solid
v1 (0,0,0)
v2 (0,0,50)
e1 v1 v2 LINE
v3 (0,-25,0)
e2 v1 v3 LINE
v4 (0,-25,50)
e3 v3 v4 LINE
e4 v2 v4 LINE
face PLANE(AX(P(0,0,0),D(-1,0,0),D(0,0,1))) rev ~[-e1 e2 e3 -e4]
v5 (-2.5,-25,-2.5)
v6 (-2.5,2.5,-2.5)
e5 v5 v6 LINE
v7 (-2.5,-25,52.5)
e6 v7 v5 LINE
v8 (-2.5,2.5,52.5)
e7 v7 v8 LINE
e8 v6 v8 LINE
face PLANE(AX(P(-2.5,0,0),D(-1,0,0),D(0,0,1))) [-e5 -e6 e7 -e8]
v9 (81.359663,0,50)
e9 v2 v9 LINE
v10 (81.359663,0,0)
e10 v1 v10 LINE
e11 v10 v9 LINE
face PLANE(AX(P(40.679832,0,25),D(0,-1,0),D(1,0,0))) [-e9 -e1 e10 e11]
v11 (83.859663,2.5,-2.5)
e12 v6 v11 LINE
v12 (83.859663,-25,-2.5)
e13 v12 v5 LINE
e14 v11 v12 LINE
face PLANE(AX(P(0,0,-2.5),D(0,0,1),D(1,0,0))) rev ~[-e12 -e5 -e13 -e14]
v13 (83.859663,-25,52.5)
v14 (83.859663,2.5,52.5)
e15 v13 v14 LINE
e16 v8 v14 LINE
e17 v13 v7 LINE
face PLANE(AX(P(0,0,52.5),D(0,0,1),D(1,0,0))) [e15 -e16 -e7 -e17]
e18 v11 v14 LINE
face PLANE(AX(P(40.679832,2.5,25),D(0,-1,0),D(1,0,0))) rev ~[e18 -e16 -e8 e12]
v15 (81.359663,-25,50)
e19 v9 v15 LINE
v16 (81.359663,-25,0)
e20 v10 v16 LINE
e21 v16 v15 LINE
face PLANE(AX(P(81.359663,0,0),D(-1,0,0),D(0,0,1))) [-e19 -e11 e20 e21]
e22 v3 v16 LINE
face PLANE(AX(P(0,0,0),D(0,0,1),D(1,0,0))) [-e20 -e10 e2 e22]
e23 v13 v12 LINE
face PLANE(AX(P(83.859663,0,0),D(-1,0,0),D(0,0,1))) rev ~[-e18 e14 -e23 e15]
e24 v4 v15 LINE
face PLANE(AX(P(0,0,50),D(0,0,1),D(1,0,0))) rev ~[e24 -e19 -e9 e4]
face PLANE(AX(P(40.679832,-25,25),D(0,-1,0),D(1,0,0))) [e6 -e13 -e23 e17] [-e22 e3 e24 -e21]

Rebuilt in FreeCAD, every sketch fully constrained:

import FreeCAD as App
import Part
import Sketcher
Q = App.Units.Quantity


def faces_at(feature, points):
    """Names of the faces that lie closest to the given points."""
    faces = feature.Shape.Faces
    near = lambda p: min(range(len(faces)), key=lambda i: faces[i].distToShape(Part.Vertex(*p))[0])
    return sorted({f"Face{near(p) + 1}" for p in points})


def add_polygon(sketch, points):
    """Adds a closed chain of lines whose ends are joined by coincident constraints."""
    first, n = sketch.GeometryCount, len(points)
    for a, b in zip(points, points[1:] + points[:1]):
        sketch.addGeometry(Part.LineSegment(App.Vector(*a, 0), App.Vector(*b, 0)), False)
    for i in range(n):
        sketch.addConstraint(Sketcher.Constraint("Coincident", first + i, 2, first + (i + 1) % n, 1))

doc = App.newDocument("Part")
params = doc.addObject("Spreadsheet::Sheet", "Params")
for row, (alias, value) in enumerate([
    ("sketch1_height", "50 mm"),
    ("pad1_length", "25 mm"),
    ("thickness_wall", "2.5 mm"),
], start=1):
    params.set(f"A{row}", alias)
    params.set(f"B{row}", "=" + value)
    params.setAlias(f"B{row}", alias)

body = doc.addObject("PartDesign::Body", "Body")

# Sketch on XZ plane
sketch1 = body.newObject("Sketcher::SketchObject", "Sketch")
sketch1.AttachmentSupport = (doc.getObject("XZ_Plane"), [""])
sketch1.MapMode = "FlatFace"
add_polygon(sketch1, [(0, 50), (0, 0), (81, 0), (81, 50)])  # lines 0-3
sketch1.addConstraint([
    Sketcher.Constraint("Vertical", 0),
    Sketcher.Constraint("Horizontal", 1),
    Sketcher.Constraint("Vertical", 2),
    Sketcher.Constraint("Horizontal", 3),
    Sketcher.Constraint("Coincident", 0, 2, -1, 1),
    Sketcher.Constraint("DistanceY", 0, 2, 0, 1, Q("50 mm")),
    Sketcher.Constraint("DistanceX", 1, 1, 1, 2, Q("81.359663 mm")),
])
sketch1.setExpression("Constraints[9]", "Params.sketch1_height")
pad1 = body.newObject("PartDesign::Pad", "Pad")
pad1.Profile = sketch1
pad1.setExpression("Length", "Params.pad1_length")
doc.recompute()

thickness = body.newObject("PartDesign::Thickness", "Thickness")
thickness.Base = (pad1, faces_at(pad1, [(40.68, -25, 25)]))
thickness.setExpression("Value", "Params.thickness_wall")
thickness.Reversed = False
thickness.Join = "Intersection"

doc.recompute()
